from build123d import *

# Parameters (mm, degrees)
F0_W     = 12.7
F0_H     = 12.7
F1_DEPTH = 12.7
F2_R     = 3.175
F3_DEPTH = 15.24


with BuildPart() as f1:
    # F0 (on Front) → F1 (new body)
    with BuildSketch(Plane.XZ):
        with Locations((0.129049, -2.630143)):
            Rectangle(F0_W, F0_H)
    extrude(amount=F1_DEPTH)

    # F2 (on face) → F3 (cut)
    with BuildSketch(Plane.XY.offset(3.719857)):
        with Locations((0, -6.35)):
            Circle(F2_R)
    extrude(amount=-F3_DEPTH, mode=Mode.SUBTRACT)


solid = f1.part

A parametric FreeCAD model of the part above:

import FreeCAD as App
import Part
import Sketcher
Q = App.Units.Quantity


def add_polygon(sketch, points):
    """Adds a closed chain of lines whose ends are joined by coincident constraints."""
    first, n = sketch.GeometryCount, len(points)
    for a, b in zip(points, points[1:] + points[:1]):
        sketch.addGeometry(Part.LineSegment(App.Vector(*a, 0), App.Vector(*b, 0)), False)
    for i in range(n):
        sketch.addConstraint(Sketcher.Constraint("Coincident", first + i, 2, first + (i + 1) % n, 1))

doc = App.newDocument("Part")
body = doc.addObject("PartDesign::Body", "Body")

# Sketch on XZ plane
sketch1 = body.newObject("Sketcher::SketchObject", "Sketch")
sketch1.AttachmentSupport = (doc.getObject("XZ_Plane"), [""])
sketch1.MapMode = "FlatFace"
add_polygon(sketch1, [(-6, 4), (-6, -9), (6, -9), (6, 4)])  # lines 0-3
sketch1.addConstraint([
    Sketcher.Constraint("Vertical", 0),
    Sketcher.Constraint("Horizontal", 1),
    Sketcher.Constraint("Vertical", 2),
    Sketcher.Constraint("Horizontal", 3),
    Sketcher.Constraint("Equal", 3, 0),
    Sketcher.Constraint("DistanceX", 1, 1, 1, 2, Q("0.5 in")),
    Sketcher.Constraint("DistanceX", 0, 2, -1, 1, Q("6.220951 mm")),
    Sketcher.Constraint("DistanceY", 0, 2, -1, 1, Q("8.980143 mm")),
])
pad1 = body.newObject("PartDesign::Pad", "Pad")
pad1.Profile = sketch1
pad1.Length = Q("0.5 in")

# Sketch on XY plane
sketch2 = body.newObject("Sketcher::SketchObject", "Sketch001")
sketch2.AttachmentSupport = (doc.getObject("XY_Plane"), [""])
sketch2.MapMode = "FlatFace"
sketch2.AttachmentOffset = App.Placement(App.Vector(0, 0, 3.719857), App.Rotation())
sketch2.addGeometry(Part.Circle(App.Vector(0, -6.3, 0), App.Vector(0, 0, 1), 3.2), False)
sketch2.addConstraint([
    Sketcher.Constraint("PointOnObject", 0, 3, -2),
    Sketcher.Constraint("Diameter", 0, Q("0.25 in")),
    Sketcher.Constraint("DistanceY", 0, 3, -1, 1, Q("0.25 in")),
])
pocket1 = body.newObject("PartDesign::Pocket", "Pocket")
pocket1.Profile = sketch2
pocket1.Length = Q("0.6 in")

doc.recompute()
